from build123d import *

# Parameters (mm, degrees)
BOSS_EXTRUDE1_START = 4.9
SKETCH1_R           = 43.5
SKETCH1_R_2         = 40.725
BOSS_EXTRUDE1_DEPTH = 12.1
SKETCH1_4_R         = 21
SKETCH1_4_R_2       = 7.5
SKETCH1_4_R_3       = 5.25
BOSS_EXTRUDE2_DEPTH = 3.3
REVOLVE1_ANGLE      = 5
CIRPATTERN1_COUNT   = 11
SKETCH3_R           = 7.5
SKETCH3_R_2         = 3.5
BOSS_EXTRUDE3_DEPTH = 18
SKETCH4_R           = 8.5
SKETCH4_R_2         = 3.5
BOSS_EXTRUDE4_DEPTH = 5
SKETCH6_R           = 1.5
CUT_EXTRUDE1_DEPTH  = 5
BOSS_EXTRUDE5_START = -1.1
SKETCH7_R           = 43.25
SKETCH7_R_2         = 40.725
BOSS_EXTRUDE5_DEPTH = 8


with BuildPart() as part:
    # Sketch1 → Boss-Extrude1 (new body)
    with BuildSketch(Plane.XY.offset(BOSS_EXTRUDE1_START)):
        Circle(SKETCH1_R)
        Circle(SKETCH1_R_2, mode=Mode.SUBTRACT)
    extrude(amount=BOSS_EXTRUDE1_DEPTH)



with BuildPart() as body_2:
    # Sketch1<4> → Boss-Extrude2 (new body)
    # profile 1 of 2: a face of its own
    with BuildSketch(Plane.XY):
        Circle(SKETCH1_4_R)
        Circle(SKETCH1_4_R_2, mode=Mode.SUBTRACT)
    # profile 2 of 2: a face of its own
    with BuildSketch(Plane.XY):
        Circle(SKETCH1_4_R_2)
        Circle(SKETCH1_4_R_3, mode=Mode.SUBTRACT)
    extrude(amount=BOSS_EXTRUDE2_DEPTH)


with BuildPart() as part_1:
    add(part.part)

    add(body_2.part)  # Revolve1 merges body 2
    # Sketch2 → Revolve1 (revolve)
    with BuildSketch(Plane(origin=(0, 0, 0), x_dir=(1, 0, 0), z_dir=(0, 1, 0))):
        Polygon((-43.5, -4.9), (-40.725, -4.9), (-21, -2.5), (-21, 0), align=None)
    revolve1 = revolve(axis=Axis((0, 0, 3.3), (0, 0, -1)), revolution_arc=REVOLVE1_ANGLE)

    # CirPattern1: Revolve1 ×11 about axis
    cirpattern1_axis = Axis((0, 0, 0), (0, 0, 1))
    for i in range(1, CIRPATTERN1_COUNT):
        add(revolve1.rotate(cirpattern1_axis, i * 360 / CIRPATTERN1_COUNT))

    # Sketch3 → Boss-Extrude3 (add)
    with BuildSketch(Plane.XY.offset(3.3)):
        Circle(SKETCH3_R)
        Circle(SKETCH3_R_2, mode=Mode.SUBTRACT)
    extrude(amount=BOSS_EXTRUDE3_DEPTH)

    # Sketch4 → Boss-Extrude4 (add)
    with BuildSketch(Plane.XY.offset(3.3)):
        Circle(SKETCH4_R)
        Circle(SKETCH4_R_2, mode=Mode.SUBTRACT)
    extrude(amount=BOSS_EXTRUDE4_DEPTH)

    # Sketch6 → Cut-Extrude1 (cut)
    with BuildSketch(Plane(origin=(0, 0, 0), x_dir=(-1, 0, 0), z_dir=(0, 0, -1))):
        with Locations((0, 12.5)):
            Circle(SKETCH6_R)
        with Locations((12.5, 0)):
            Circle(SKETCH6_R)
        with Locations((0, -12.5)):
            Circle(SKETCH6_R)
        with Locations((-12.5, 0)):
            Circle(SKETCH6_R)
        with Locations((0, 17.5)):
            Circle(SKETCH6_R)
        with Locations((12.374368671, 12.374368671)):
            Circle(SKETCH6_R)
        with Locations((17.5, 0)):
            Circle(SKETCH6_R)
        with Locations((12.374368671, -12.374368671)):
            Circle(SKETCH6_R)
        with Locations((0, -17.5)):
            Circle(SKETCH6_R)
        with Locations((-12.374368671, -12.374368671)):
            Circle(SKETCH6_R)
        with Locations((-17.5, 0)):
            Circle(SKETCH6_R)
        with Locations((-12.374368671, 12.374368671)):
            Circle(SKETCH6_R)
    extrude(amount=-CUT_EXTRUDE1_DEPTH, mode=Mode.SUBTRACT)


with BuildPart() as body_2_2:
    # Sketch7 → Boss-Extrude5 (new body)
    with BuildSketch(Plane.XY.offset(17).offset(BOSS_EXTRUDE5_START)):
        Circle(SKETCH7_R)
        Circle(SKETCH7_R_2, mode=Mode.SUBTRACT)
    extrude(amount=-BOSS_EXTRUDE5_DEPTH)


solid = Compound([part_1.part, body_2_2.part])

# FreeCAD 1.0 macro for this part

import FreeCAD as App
import Part
import Sketcher

V = App.Vector
Q = App.Units.Quantity

doc = App.newDocument("Part")
body = doc.addObject("PartDesign::Body", "Body")

sketch1 = doc.addObject("Sketcher::SketchObject", "Sketch")
body.addObject(sketch1)
sketch1.AttachmentSupport = (doc.XY_Plane, [""])
sketch1.MapMode = "FlatFace"
sketch1.AttachmentOffset = App.Placement(V(0, 0, 4.9), App.Rotation())
sketch1.addGeometry([
    Part.Circle(V(0, 0, 0), V(0, 0, 1), 44),
    Part.Circle(V(0, 0, 0), V(0, 0, 1), 41),
], False)
sketch1.addConstraint([
    Sketcher.Constraint("Coincident", 0, 3, -1, 1),
    Sketcher.Constraint("Coincident", 1, 3, -1, 1),
    Sketcher.Constraint("Diameter", 0, Q("87 mm")),
    Sketcher.Constraint("Diameter", 1, Q("81.45 mm")),
])
pad1 = doc.addObject("PartDesign::Pad", "Pad")
body.addObject(pad1)
pad1.Profile = sketch1
pad1.Length = 12.1
body2 = doc.addObject("PartDesign::Body", "Body001")

sketch2 = doc.addObject("Sketcher::SketchObject", "Sketch001")
body2.addObject(sketch2)
sketch2.AttachmentSupport = (doc.getObject("XY_Plane001"), [""])
sketch2.MapMode = "FlatFace"
sketch2.addGeometry([
    Part.Circle(V(0, 0, 0), V(0, 0, 1), 21),
    Part.Circle(V(0, 0, 0), V(0, 0, 1), 5),
], False)
sketch2.addConstraint([
    Sketcher.Constraint("Coincident", 0, 3, -1, 1),
    Sketcher.Constraint("Coincident", 1, 3, -1, 1),
    Sketcher.Constraint("Diameter", 0, Q("42 mm")),
    Sketcher.Constraint("Diameter", 1, Q("10.5 mm")),
])
pad2 = doc.addObject("PartDesign::Pad", "Pad001")
body2.addObject(pad2)
pad2.Profile = sketch2
pad2.Length = 3.3
body.AllowCompound = True
doc.recompute()

boolean = doc.addObject("PartDesign::Boolean", "Boolean")
body.addObject(boolean)
boolean.Type = "Fuse"
boolean.addObjects([body2])

sketch3 = doc.addObject("Sketcher::SketchObject", "Sketch002")
body.addObject(sketch3)
sketch3.AttachmentSupport = (doc.XZ_Plane, [""])
sketch3.MapMode = "FlatFace"
sketch3.addGeometry([
    Part.LineSegment(V(-43.5, 4.9, 0), V(-40.7, 4.9, 0)),
    Part.LineSegment(V(-40.7, 4.9, 0), V(-21, 2.5, 0)),
    Part.LineSegment(V(-21, 2.5, 0), V(-21, 0, 0)),
    Part.LineSegment(V(-21, 0, 0), V(-43.5, 4.9, 0)),
], False)
sketch3.addConstraint([
    Sketcher.Constraint("Coincident", 0, 2, 1, 1),
    Sketcher.Constraint("Coincident", 1, 2, 2, 1),
    Sketcher.Constraint("Coincident", 2, 2, 3, 1),
    Sketcher.Constraint("Coincident", 3, 2, 0, 1),
    Sketcher.Constraint("Horizontal", 0),
    Sketcher.Constraint("Vertical", 2),
    Sketcher.Constraint("PointOnObject", 2, 2, -1),
    Sketcher.Constraint("DistanceY", 2, 2, 2, 1, Q("2.5 mm")),
    Sketcher.Constraint("DistanceX", 1, 2, -1, 1, Q("21 mm")),
    Sketcher.Constraint("DistanceY", -1, 1, 0, 2, Q("4.9 mm")),
    Sketcher.Constraint("DistanceX", 3, 2, -1, 1, Q("43.5 mm")),
    Sketcher.Constraint("DistanceX", 0, 1, 0, 2, Q("2.775 mm")),
])
revolution = doc.addObject("PartDesign::Revolution", "Revolution")
body.addObject(revolution)
revolution.Profile = sketch3
revolution.ReferenceAxis = (sketch3, ["V_Axis"])
revolution.Angle = 5
revolution.Reversed = True
doc.recompute()

polarpattern = doc.addObject("PartDesign::PolarPattern", "PolarPattern")
body.addObject(polarpattern)
polarpattern.Originals = [revolution]
polarpattern.Axis = (doc.Z_Axis, [""])
polarpattern.Angle = 360
polarpattern.Occurrences = 11
body.Tip = polarpattern

sketch4 = doc.addObject("Sketcher::SketchObject", "Sketch003")
body.addObject(sketch4)
sketch4.AttachmentSupport = (doc.XY_Plane, [""])
sketch4.MapMode = "FlatFace"
sketch4.AttachmentOffset = App.Placement(V(0, 0, 3.3), App.Rotation())
sketch4.addGeometry([
    Part.Circle(V(0, 0, 0), V(0, 0, 1), 7.5),
    Part.Circle(V(0, 0, 0), V(0, 0, 1), 3.5),
], False)
sketch4.addConstraint([
    Sketcher.Constraint("Coincident", 0, 3, -1, 1),
    Sketcher.Constraint("Coincident", 1, 3, -1, 1),
    Sketcher.Constraint("Diameter", 0, Q("15 mm")),
    Sketcher.Constraint("Diameter", 1, Q("7 mm")),
])
pad3 = doc.addObject("PartDesign::Pad", "Pad002")
body.addObject(pad3)
pad3.Profile = sketch4
pad3.Length = 18

sketch5 = doc.addObject("Sketcher::SketchObject", "Sketch004")
body.addObject(sketch5)
sketch5.AttachmentSupport = (doc.XY_Plane, [""])
sketch5.MapMode = "FlatFace"
sketch5.AttachmentOffset = App.Placement(V(0, 0, 3.3), App.Rotation())
sketch5.addGeometry([
    Part.Circle(V(0, 0, 0), V(0, 0, 1), 8.5),
    Part.Circle(V(0, 0, 0), V(0, 0, 1), 3.5),
], False)
sketch5.addConstraint([
    Sketcher.Constraint("Coincident", 0, 3, -1, 1),
    Sketcher.Constraint("Coincident", 1, 3, -1, 1),
    Sketcher.Constraint("Diameter", 0, Q("17 mm")),
    Sketcher.Constraint("Diameter", 1, Q("7 mm")),
])
pad4 = doc.addObject("PartDesign::Pad", "Pad003")
body.addObject(pad4)
pad4.Profile = sketch5
pad4.Length = 5

sketch6 = doc.addObject("Sketcher::SketchObject", "Sketch005")
body.addObject(sketch6)
sketch6.AttachmentSupport = (doc.XY_Plane, [""])
sketch6.MapMode = "FlatFace"
sketch6.addGeometry([
    Part.Circle(V(0, 12.5, 0), V(0, 0, 1), 1.5),
    Part.Circle(V(-12.5, 0, 0), V(0, 0, 1), 1.5),
    Part.Circle(V(0, -12.5, 0), V(0, 0, 1), 1.5),
    Part.Circle(V(12.5, 0, 0), V(0, 0, 1), 1.5),
    Part.Circle(V(0, 17.5, 0), V(0, 0, 1), 1.5),
    Part.Circle(V(-12.4, 12.4, 0), V(0, 0, 1), 1.5),
    Part.Circle(V(-17.5, 0, 0), V(0, 0, 1), 1.5),
    Part.Circle(V(-12.4, -12.4, 0), V(0, 0, 1), 1.5),
    Part.Circle(V(0, -17.5, 0), V(0, 0, 1), 1.5),
    Part.Circle(V(12.4, -12.4, 0), V(0, 0, 1), 1.5),
    Part.Circle(V(17.5, 0, 0), V(0, 0, 1), 1.5),
    Part.Circle(V(12.4, 12.4, 0), V(0, 0, 1), 1.5),
], False)
sketch6.addConstraint([
    Sketcher.Constraint("Equal", 0, 1),
    Sketcher.Constraint("Equal", 1, 2),
    Sketcher.Constraint("Equal", 2, 3),
    Sketcher.Constraint("Equal", 3, 4),
    Sketcher.Constraint("Equal", 4, 5),
    Sketcher.Constraint("Equal", 5, 6),
    Sketcher.Constraint("Equal", 6, 7),
    Sketcher.Constraint("Equal", 7, 8),
    Sketcher.Constraint("Equal", 8, 9),
    Sketcher.Constraint("Equal", 9, 10),
    Sketcher.Constraint("Equal", 10, 11),
    Sketcher.Constraint("Symmetric", 0, 3, 2, 3, -1, 1),
    Sketcher.Constraint("Symmetric", 1, 3, 3, 3, -1, 1),
    Sketcher.Constraint("Symmetric", 4, 3, 8, 3, -1, 1),
    Sketcher.Constraint("Symmetric", 5, 3, 9, 3, -1, 1),
    Sketcher.Constraint("Symmetric", 6, 3, 10, 3, -1, 1),
    Sketcher.Constraint("Symmetric", 7, 3, 11, 3, -1, 1),
    Sketcher.Constraint("Symmetric", 7, 3, 9, 3, -2),
    Sketcher.Constraint("PointOnObject", 0, 3, -2),
    Sketcher.Constraint("PointOnObject", 1, 3, -1),
    Sketcher.Constraint("PointOnObject", 4, 3, -2),
    Sketcher.Constraint("PointOnObject", 6, 3, -1),
    Sketcher.Constraint("Diameter", 0, Q("3 mm")),
    Sketcher.Constraint("DistanceY", 2, 3, 0, 3, Q("25 mm")),
    Sketcher.Constraint("DistanceX", 1, 3, 3, 3, Q("25 mm")),
    Sketcher.Constraint("DistanceY", 0, 3, 4, 3, Q("5 mm")),
    Sketcher.Constraint("DistanceX", 6, 3, 1, 3, Q("5 mm")),
    Sketcher.Constraint("DistanceX", 5, 3, -1, 1, Q("12.374369 mm")),
    Sketcher.Constraint("DistanceY", -1, 1, 5, 3, Q("12.374369 mm")),
])
pocket1 = doc.addObject("PartDesign::Pocket", "Pocket")
body.addObject(pocket1)
pocket1.Profile = sketch6
pocket1.Length = 5
pocket1.Reversed = True
body3 = doc.addObject("PartDesign::Body", "Body002")

sketch7 = doc.addObject("Sketcher::SketchObject", "Sketch006")
body3.addObject(sketch7)
sketch7.AttachmentSupport = (doc.getObject("XY_Plane002"), [""])
sketch7.MapMode = "FlatFace"
sketch7.AttachmentOffset = App.Placement(V(0, 0, 15.9), App.Rotation())
sketch7.addGeometry([
    Part.Circle(V(0, 0, 0), V(0, 0, 1), 43),
    Part.Circle(V(0, 0, 0), V(0, 0, 1), 41),
], False)
sketch7.addConstraint([
    Sketcher.Constraint("Coincident", 0, 3, -1, 1),
    Sketcher.Constraint("Coincident", 1, 3, -1, 1),
    Sketcher.Constraint("Diameter", 0, Q("86.5 mm")),
    Sketcher.Constraint("Diameter", 1, Q("81.45 mm")),
])
pad5 = doc.addObject("PartDesign::Pad", "Pad004")
body3.addObject(pad5)
pad5.Profile = sketch7
pad5.Length = 8
pad5.Reversed = True

doc.recompute()
